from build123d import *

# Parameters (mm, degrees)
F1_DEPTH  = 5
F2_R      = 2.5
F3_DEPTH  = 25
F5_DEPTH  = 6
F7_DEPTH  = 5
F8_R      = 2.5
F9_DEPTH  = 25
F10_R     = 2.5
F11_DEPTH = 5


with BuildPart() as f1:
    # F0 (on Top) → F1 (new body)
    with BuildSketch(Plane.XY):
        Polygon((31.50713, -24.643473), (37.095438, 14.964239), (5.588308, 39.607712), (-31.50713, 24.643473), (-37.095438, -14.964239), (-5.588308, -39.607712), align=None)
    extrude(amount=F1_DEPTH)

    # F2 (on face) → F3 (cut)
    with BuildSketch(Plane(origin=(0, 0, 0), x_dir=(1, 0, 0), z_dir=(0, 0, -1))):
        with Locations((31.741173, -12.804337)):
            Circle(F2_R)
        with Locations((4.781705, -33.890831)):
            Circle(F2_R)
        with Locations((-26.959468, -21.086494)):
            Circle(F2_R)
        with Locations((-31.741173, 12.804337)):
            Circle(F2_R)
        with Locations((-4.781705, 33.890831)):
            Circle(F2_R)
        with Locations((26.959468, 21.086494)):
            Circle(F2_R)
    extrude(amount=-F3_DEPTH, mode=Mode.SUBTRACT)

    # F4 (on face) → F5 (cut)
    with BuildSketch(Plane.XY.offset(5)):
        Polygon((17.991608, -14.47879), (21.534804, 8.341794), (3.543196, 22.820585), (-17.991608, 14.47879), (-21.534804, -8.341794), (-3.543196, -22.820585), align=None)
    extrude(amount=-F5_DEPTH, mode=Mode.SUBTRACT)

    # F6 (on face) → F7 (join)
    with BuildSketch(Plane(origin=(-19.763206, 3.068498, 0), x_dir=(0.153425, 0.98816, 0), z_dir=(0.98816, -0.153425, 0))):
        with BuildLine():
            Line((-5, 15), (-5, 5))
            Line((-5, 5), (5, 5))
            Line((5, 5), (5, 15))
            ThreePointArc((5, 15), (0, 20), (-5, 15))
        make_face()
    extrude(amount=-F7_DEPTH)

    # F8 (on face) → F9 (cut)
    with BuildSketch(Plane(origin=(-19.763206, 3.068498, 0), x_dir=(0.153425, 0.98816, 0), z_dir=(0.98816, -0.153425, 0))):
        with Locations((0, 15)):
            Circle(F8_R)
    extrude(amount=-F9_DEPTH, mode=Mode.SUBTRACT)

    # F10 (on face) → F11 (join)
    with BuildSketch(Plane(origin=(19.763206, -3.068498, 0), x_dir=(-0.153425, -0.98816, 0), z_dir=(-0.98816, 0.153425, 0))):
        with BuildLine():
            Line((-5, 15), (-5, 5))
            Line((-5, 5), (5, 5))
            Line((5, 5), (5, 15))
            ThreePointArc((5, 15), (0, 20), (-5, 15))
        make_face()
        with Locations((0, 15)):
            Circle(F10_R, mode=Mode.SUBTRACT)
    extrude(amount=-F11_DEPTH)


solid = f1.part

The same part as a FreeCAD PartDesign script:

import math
import FreeCAD as App
import Part
import Sketcher
from FreeCAD import Vector


def add_polygon(sketch, points):
    """Adds a closed chain of lines whose ends are joined by coincident constraints."""
    first, n = sketch.GeometryCount, len(points)
    for a, b in zip(points, points[1:] + points[:1]):
        sketch.addGeometry(Part.LineSegment(App.Vector(*a, 0), App.Vector(*b, 0)), False)
    for i in range(n):
        sketch.addConstraint(Sketcher.Constraint("Coincident", first + i, 2, first + (i + 1) % n, 1))

doc = App.newDocument("Part")
params = doc.addObject("Spreadsheet::Sheet", "Params")
for row, (alias, value) in enumerate([
    ("sketch1_length", "40 mm"),
    ("pad1_length", "5 mm"),
    ("sketch2_diameter", "5 mm"),
    ("pocket1_length", "25 mm"),
    ("pocket2_length", "6 mm"),
    ("sketch4_radius", "5 mm"),
    ("pad2_length", "5 mm"),
    ("sketch5_diameter", "5 mm"),
    ("pocket3_length", "25 mm"),
    ("sketch6_diameter", "5 mm"),
    ("sketch6_radius", "5 mm"),
    ("pad3_length", "5 mm"),
], start=1):
    params.set(f"A{row}", alias)
    params.set(f"B{row}", "=" + value)
    params.setAlias(f"B{row}", alias)

body = doc.addObject("PartDesign::Body", "Body")

# Sketch on XY plane
sketch1 = body.newObject("Sketcher::SketchObject", "Sketch")
sketch1.AttachmentSupport = (doc.getObject("XY_Plane"), [""])
sketch1.MapMode = "FlatFace"
add_polygon(sketch1, [(32, -25), (37, 15), (6, 40), (-32, 25), (-37, -15), (-6, -40)])  # lines 0-5
sketch1.addConstraint([
    Sketcher.Constraint("Symmetric", 0, 2, 3, 2, -1, 1),
    Sketcher.Constraint("Symmetric", 1, 2, 4, 2, -1, 1),
    Sketcher.Constraint("Symmetric", 2, 2, 5, 2, -1, 1),
    Sketcher.Constraint("Equal", 0, 1),
    Sketcher.Constraint("Equal", 1, 2),
    Sketcher.Constraint("Distance", 0, 40.0),
    Sketcher.Constraint("DistanceY", -1, 1, 0, 2, 14.964239),
    Sketcher.Constraint("DistanceX", 2, 2, -1, 1, 31.50713),
    Sketcher.Constraint("DistanceX", 1, 2, 0, 2, 31.50713),
])
sketch1.setExpression("Constraints[11]", "Params.sketch1_length")
pad1 = body.newObject("PartDesign::Pad", "Pad")
pad1.Profile = sketch1
pad1.setExpression("Length", "Params.pad1_length")

# Sketch on XY plane
sketch2 = body.newObject("Sketcher::SketchObject", "Sketch001")
sketch2.AttachmentSupport = (doc.getObject("XY_Plane"), [""])
sketch2.MapMode = "FlatFace"
sketch2.addGeometry([
    Part.Circle(Vector(31.7, 12.8, 0), Vector(0, 0, 1), 2.5),  # 0
    Part.Circle(Vector(4.8, 33.9, 0), Vector(0, 0, 1), 2.5),  # 1
    Part.Circle(Vector(-27, 21.1, 0), Vector(0, 0, 1), 2.5),  # 2
    Part.Circle(Vector(-31.7, -12.8, 0), Vector(0, 0, 1), 2.5),  # 3
    Part.Circle(Vector(-4.8, -33.9, 0), Vector(0, 0, 1), 2.5),  # 4
    Part.Circle(Vector(27, -21.1, 0), Vector(0, 0, 1), 2.5),  # 5
], False)
sketch2.addConstraint([
    Sketcher.Constraint("Equal", 0, 1),
    Sketcher.Constraint("Equal", 1, 2),
    Sketcher.Constraint("Equal", 2, 3),
    Sketcher.Constraint("Equal", 3, 4),
    Sketcher.Constraint("Equal", 4, 5),
    Sketcher.Constraint("Symmetric", 0, 3, 3, 3, -1, 1),
    Sketcher.Constraint("Symmetric", 1, 3, 4, 3, -1, 1),
    Sketcher.Constraint("Symmetric", 2, 3, 5, 3, -1, 1),
    Sketcher.Constraint("Diameter", 0, 5.0),
    Sketcher.Constraint("DistanceY", -1, 1, 1, 3, 33.890831),
    Sketcher.Constraint("DistanceX", 2, 3, -1, 1, 26.959468),
    Sketcher.Constraint("DistanceX", 1, 3, 0, 3, 26.959468),
    Sketcher.Constraint("DistanceX", 2, 3, 0, 3, 58.700641),
    Sketcher.Constraint("DistanceY", 3, 3, 2, 3, 33.890831),
    Sketcher.Constraint("DistanceY", -1, 1, 0, 3, 12.804337),
])
sketch2.setExpression("Constraints[8]", "Params.sketch2_diameter")
pocket1 = body.newObject("PartDesign::Pocket", "Pocket")
pocket1.Profile = sketch2
pocket1.setExpression("Length", "Params.pocket1_length")
pocket1.Reversed = True

# Sketch on XY plane
sketch3 = body.newObject("Sketcher::SketchObject", "Sketch002")
sketch3.AttachmentSupport = (doc.getObject("XY_Plane"), [""])
sketch3.MapMode = "FlatFace"
sketch3.AttachmentOffset = App.Placement(Vector(0, 0, 5), App.Rotation())
add_polygon(sketch3, [(18, -14), (22, 8), (4, 23), (-18, 14), (-22, -8), (-4, -23)])  # lines 0-5
sketch3.addConstraint([
    Sketcher.Constraint("Symmetric", 0, 2, 3, 2, -1, 1),
    Sketcher.Constraint("Symmetric", 1, 2, 4, 2, -1, 1),
    Sketcher.Constraint("Symmetric", 2, 2, 5, 2, -1, 1),
    Sketcher.Constraint("Equal", 0, 1),
    Sketcher.Constraint("Equal", 1, 2),
    Sketcher.Constraint("DistanceX", 3, 2, 1, 2, 25.078),
    Sketcher.Constraint("Distance", 0, 23.09401),
    Sketcher.Constraint("DistanceY", -1, 1, 2, 2, 14.47879),
    Sketcher.Constraint("DistanceY", 0, 2, 1, 2, 14.478791),
])
pocket2 = body.newObject("PartDesign::Pocket", "Pocket001")
pocket2.Profile = sketch3
pocket2.setExpression("Length", "Params.pocket2_length")

# Sketch on an angled plane
sketch4 = body.newObject("Sketcher::SketchObject", "Sketch003")
sketch4.Placement = App.Placement(Vector(-19.763206, 3.068498, 0), App.Rotation(Vector(0.153425045, 0.988160288, 0), Vector(0, 0, 0.999999999), Vector(0.988160288, -0.153425045, 0), "ZXY"))
sketch4.addGeometry([
    Part.LineSegment(Vector(-5, 15, 0), Vector(-5, 5, 0)),
    Part.LineSegment(Vector(-5, 5, 0), Vector(5, 5, 0)),
    Part.LineSegment(Vector(5, 5, 0), Vector(5, 15, 0)),
    Part.ArcOfCircle(Part.Circle(Vector(0, 15, 0), Vector(0, 0, 1), 5), math.radians(0), math.radians(180)),
], False)
sketch4.addConstraint([
    Sketcher.Constraint("Coincident", 0, 2, 1, 1),
    Sketcher.Constraint("Coincident", 1, 2, 2, 1),
    Sketcher.Constraint("Tangent", 2, 2, 3, 1),
    Sketcher.Constraint("Tangent", 3, 2, 0, 1),
    Sketcher.Constraint("Vertical", 0),
    Sketcher.Constraint("Horizontal", 1),
    Sketcher.Constraint("Vertical", 2),
    Sketcher.Constraint("PointOnObject", 3, 3, -2),
    Sketcher.Constraint("Equal", 1, 0),
    Sketcher.Constraint("Radius", 3, 5.0),
    Sketcher.Constraint("DistanceY", -1, 1, 3, 3, 15.0),
])
sketch4.setExpression("Constraints[9]", "Params.sketch4_radius")
pad2 = body.newObject("PartDesign::Pad", "Pad001")
pad2.Profile = sketch4
pad2.setExpression("Length", "Params.pad2_length")
pad2.Reversed = True

# Sketch on an angled plane
sketch5 = body.newObject("Sketcher::SketchObject", "Sketch004")
sketch5.Placement = App.Placement(Vector(-19.763206, 3.068498, 0), App.Rotation(Vector(0.153425045, 0.988160288, 0), Vector(0, 0, 0.999999999), Vector(0.988160288, -0.153425045, 0), "ZXY"))
sketch5.addGeometry(Part.Circle(Vector(0, 15, 0), Vector(0, 0, 1), 2.5), False)
sketch5.addConstraint([
    Sketcher.Constraint("PointOnObject", 0, 3, -2),
    Sketcher.Constraint("Diameter", 0, 5.0),
    Sketcher.Constraint("DistanceY", -1, 1, 0, 3, 15.0),
])
sketch5.setExpression("Constraints[1]", "Params.sketch5_diameter")
pocket3 = body.newObject("PartDesign::Pocket", "Pocket002")
pocket3.Profile = sketch5
pocket3.setExpression("Length", "Params.pocket3_length")

# Sketch on an angled plane
sketch6 = body.newObject("Sketcher::SketchObject", "Sketch005")
sketch6.Placement = App.Placement(Vector(19.763206, -3.068498, 0), App.Rotation(Vector(-0.153425045, -0.988160288, 0), Vector(0, 0, 0.999999999), Vector(-0.988160288, 0.153425045, 0), "ZXY"))
sketch6.addGeometry([
    Part.LineSegment(Vector(-5, 15, 0), Vector(-5, 5, 0)),  # 0
    Part.LineSegment(Vector(-5, 5, 0), Vector(5, 5, 0)),  # 1
    Part.LineSegment(Vector(5, 5, 0), Vector(5, 15, 0)),  # 2
    Part.ArcOfCircle(Part.Circle(Vector(0, 15, 0), Vector(0, 0, 1), 5), math.radians(0), math.radians(180)),  # 3
    Part.Circle(Vector(0, 15, 0), Vector(0, 0, 1), 2.5),  # 4
], False)
sketch6.addConstraint([
    Sketcher.Constraint("Coincident", 0, 2, 1, 1),
    Sketcher.Constraint("Coincident", 1, 2, 2, 1),
    Sketcher.Constraint("Tangent", 2, 2, 3, 1),
    Sketcher.Constraint("Tangent", 3, 2, 0, 1),
    Sketcher.Constraint("Vertical", 0),
    Sketcher.Constraint("Horizontal", 1),
    Sketcher.Constraint("Vertical", 2),
    Sketcher.Constraint("Coincident", 4, 3, 3, 3),
    Sketcher.Constraint("PointOnObject", 3, 3, -2),
    Sketcher.Constraint("Equal", 1, 0),
    Sketcher.Constraint("Diameter", 4, 5.0),
    Sketcher.Constraint("Radius", 3, 5.0),
    Sketcher.Constraint("DistanceY", -1, 1, 3, 3, 15.0),
])
sketch6.setExpression("Constraints[10]", "Params.sketch6_diameter")
sketch6.setExpression("Constraints[11]", "Params.sketch6_radius")
pad3 = body.newObject("PartDesign::Pad", "Pad002")
pad3.Profile = sketch6
pad3.setExpression("Length", "Params.pad3_length")
pad3.Reversed = True

doc.recompute()
